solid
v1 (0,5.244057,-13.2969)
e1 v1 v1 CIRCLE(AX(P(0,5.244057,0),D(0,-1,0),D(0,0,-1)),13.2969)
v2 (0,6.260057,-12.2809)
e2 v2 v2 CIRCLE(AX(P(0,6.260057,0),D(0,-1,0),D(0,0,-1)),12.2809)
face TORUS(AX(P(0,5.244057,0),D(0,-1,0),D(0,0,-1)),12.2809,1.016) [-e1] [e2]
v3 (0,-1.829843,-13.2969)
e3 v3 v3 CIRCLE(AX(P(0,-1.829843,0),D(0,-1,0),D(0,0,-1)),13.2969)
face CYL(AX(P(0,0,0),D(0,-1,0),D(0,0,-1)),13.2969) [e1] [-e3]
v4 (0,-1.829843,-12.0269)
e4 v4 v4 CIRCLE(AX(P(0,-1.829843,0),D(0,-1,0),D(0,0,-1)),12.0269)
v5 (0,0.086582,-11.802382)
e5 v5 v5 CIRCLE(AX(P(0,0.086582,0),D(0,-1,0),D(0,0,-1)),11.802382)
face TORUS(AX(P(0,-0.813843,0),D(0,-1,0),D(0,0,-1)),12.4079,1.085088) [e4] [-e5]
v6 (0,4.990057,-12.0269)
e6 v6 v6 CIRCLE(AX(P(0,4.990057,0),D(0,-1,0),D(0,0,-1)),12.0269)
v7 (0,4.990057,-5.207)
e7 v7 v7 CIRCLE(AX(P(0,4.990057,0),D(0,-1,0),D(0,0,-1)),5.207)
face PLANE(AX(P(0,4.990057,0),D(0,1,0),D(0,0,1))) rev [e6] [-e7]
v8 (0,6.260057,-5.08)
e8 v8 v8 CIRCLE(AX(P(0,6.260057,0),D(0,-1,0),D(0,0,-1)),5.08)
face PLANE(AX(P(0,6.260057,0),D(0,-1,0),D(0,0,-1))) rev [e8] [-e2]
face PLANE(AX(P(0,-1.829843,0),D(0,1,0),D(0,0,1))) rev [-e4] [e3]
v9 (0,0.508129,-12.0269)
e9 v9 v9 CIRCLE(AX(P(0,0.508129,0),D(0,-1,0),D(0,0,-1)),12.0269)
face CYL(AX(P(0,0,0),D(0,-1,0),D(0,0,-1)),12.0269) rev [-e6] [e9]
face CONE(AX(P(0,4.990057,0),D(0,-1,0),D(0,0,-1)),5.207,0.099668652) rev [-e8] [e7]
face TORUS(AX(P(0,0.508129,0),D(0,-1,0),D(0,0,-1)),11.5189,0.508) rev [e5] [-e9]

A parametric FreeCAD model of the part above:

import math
import FreeCAD as App
import Part
import Sketcher

V = App.Vector
Q = App.Units.Quantity

doc = App.newDocument("Part")
body = doc.addObject("PartDesign::Body", "Body")

sketch1 = body.newObject("Sketcher::SketchObject", "Sketch")
sketch1.AttachmentSupport = (doc.getObject("XY_Plane"), [""])
sketch1.MapMode = "FlatFace"
sketch1.addGeometry([
    Part.LineSegment(V(12.03, 4.99, 0), V(12.03, 0.51, 0)),
    Part.ArcOfCircle(Part.Circle(V(11.52, 0.51, 0), V(0, 0, 1), 0.51), math.radians(-56), math.radians(0)),
    Part.ArcOfCircle(Part.Circle(V(12.41, -0.81, 0), V(0, 0, 1), 1.09), math.radians(124), math.radians(249)),
    Part.LineSegment(V(12.03, -1.83, 0), V(13.3, -1.83, 0)),
    Part.LineSegment(V(13.3, -1.83, 0), V(13.3, 5.24, 0)),
    Part.ArcOfCircle(Part.Circle(V(12.28, 5.24, 0), V(0, 0, 1), 1.02), math.radians(0), math.radians(90)),
    Part.LineSegment(V(12.28, 6.26, 0), V(5.08, 6.26, 0)),
    Part.LineSegment(V(5.08, 6.26, 0), V(5.21, 4.99, 0)),
    Part.LineSegment(V(5.21, 4.99, 0), V(12.03, 4.99, 0)),
], False)
sketch1.addConstraint([
    Sketcher.Constraint("Tangent", 0, 2, 1, 2),
    Sketcher.Constraint("Tangent", 1, 1, 2, 1),
    Sketcher.Constraint("Coincident", 2, 2, 3, 1),
    Sketcher.Constraint("Coincident", 3, 2, 4, 1),
    Sketcher.Constraint("Tangent", 4, 2, 5, 1),
    Sketcher.Constraint("Tangent", 5, 2, 6, 1),
    Sketcher.Constraint("Coincident", 6, 2, 7, 1),
    Sketcher.Constraint("Coincident", 7, 2, 8, 1),
    Sketcher.Constraint("Coincident", 8, 2, 0, 1),
    Sketcher.Constraint("Vertical", 0),
    Sketcher.Constraint("Horizontal", 3),
    Sketcher.Constraint("Vertical", 4),
    Sketcher.Constraint("Horizontal", 6),
    Sketcher.Constraint("Horizontal", 8),
    Sketcher.Constraint("Vertical", 0, 2, 2, 2),
    Sketcher.Constraint("Radius", 1, Q("0.02 in")),
    Sketcher.Constraint("Radius", 5, Q("0.04 in")),
    Sketcher.Constraint("DistanceX", 3, 1, 3, 2, Q("0.05 in")),
    Sketcher.Constraint("DistanceX", -1, 1, 6, 2, Q("0.2 in")),
    Sketcher.Constraint("DistanceY", 2, 2, 2, 3, Q("0.04 in")),
    Sketcher.Constraint("DistanceY", 7, 2, 6, 2, Q("0.05 in")),
    Sketcher.Constraint("DistanceX", 6, 2, 6, 1, Q("0.2835 in")),
    Sketcher.Constraint("DistanceX", 8, 1, 8, 2, Q("0.2685 in")),
    Sketcher.Constraint("DistanceY", 4, 1, 4, 2, Q("0.2785 in")),
    Sketcher.Constraint("Radius", 2, Q("1.085088 mm")),
    Sketcher.Constraint("DistanceY", -1, 1, 1, 3, Q("0.508129 mm")),
])
revolution = body.newObject("PartDesign::Revolution", "Revolution")
revolution.Profile = sketch1
revolution.ReferenceAxis = (sketch1, ["V_Axis"])
revolution.Angle = 360

doc.recompute()
